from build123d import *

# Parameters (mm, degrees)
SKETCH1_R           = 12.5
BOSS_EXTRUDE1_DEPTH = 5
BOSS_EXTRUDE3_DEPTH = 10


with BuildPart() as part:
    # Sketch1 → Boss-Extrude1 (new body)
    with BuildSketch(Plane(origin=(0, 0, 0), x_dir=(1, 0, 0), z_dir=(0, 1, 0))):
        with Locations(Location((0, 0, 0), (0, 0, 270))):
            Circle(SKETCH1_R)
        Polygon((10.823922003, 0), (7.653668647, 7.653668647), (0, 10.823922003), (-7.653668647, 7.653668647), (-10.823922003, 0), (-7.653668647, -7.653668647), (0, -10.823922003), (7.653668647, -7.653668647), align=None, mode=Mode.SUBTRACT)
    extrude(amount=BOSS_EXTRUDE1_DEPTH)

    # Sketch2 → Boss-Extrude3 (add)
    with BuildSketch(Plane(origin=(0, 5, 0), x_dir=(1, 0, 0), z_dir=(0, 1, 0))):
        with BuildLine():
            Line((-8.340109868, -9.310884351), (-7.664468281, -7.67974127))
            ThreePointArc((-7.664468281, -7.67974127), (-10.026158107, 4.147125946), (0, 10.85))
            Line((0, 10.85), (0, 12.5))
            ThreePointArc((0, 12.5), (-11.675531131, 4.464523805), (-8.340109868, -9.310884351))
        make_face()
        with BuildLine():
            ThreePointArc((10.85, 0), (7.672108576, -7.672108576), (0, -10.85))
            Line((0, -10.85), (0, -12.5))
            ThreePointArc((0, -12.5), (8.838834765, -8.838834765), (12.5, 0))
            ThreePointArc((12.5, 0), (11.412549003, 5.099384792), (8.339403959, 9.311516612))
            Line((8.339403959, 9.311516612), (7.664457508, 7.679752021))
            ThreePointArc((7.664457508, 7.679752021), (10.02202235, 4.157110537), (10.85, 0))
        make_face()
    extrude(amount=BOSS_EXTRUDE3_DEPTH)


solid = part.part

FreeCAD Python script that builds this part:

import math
import FreeCAD as App
import Part
import Sketcher
from FreeCAD import Vector
Q = App.Units.Quantity


def add_polygon(sketch, points):
    """Adds a closed chain of lines whose ends are joined by coincident constraints."""
    first, n = sketch.GeometryCount, len(points)
    for a, b in zip(points, points[1:] + points[:1]):
        sketch.addGeometry(Part.LineSegment(App.Vector(*a, 0), App.Vector(*b, 0)), False)
    for i in range(n):
        sketch.addConstraint(Sketcher.Constraint("Coincident", first + i, 2, first + (i + 1) % n, 1))

doc = App.newDocument("Part")
body = doc.addObject("PartDesign::Body", "Body")

sketch1 = body.newObject("Sketcher::SketchObject", "Sketch")
sketch1.AttachmentSupport = (doc.getObject("XZ_Plane"), [""])
sketch1.MapMode = "FlatFace"
sketch1.addGeometry(Part.Circle(Vector(0, 0, 0), Vector(0, 0, 1), 12), False)
add_polygon(sketch1, [(8, -8), (11, 0), (8, 8), (0, 11), (-8, 8), (-11, 0), (-8, -8), (0, -11)])
sketch1.addConstraint(Sketcher.Constraint("Coincident", 0, 3, -1, 1))
sketch1.addConstraint(Sketcher.Constraint("Symmetric", 1, 2, 5, 2, -1, 1))
sketch1.addConstraint(Sketcher.Constraint("Symmetric", 2, 2, 6, 2, -1, 1))
sketch1.addConstraint(Sketcher.Constraint("Symmetric", 3, 2, 7, 2, -1, 1))
sketch1.addConstraint(Sketcher.Constraint("Symmetric", 4, 2, 8, 2, -1, 1))
sketch1.addConstraint(Sketcher.Constraint("Symmetric", 2, 2, 4, 2, -2))
sketch1.addConstraint(Sketcher.Constraint("PointOnObject", 1, 2, -1))
sketch1.addConstraint(Sketcher.Constraint("PointOnObject", 3, 2, -2))
sketch1.addConstraint(Sketcher.Constraint("Perpendicular", 1, 3))
sketch1.addConstraint(Sketcher.Constraint("Equal", 2, 3))
sketch1.addConstraint(Sketcher.Constraint("Diameter", 0, 25.0))
sketch1.addConstraint(Sketcher.Constraint("Angle", 1, Q("67.5 deg")))
sketch1.addConstraint(Sketcher.Constraint("Distance", 1, 8.284271))
pad1 = body.newObject("PartDesign::Pad", "Pad")
pad1.Profile = sketch1
pad1.Length = 5
pad1.Reversed = True

sketch2 = body.newObject("Sketcher::SketchObject", "Sketch001")
sketch2.AttachmentSupport = (doc.getObject("XZ_Plane"), [""])
sketch2.MapMode = "FlatFace"
sketch2.AttachmentOffset = App.Placement(Vector(0, 0, -5), App.Rotation())
sketch2.addGeometry(Part.LineSegment(Vector(-8.3, 9.3, 0), Vector(-7.7, 7.7, 0)), False)
sketch2.addGeometry(Part.ArcOfCircle(Part.Circle(Vector(0, 0, 0), Vector(0, 0, 1), 10.8), math.radians(135), math.radians(270)), False)
sketch2.addGeometry(Part.LineSegment(Vector(0, -10.8, 0), Vector(0, -12.5, 0)), False)
sketch2.addGeometry(Part.ArcOfCircle(Part.Circle(Vector(0, 0, 0), Vector(0, 0, 1), 12.5), math.radians(132), math.radians(270)), False)
sketch2.addGeometry(Part.ArcOfCircle(Part.Circle(Vector(0, 0, 0), Vector(0, 0, 1), 10.8), math.radians(0), math.radians(90)), False)
sketch2.addGeometry(Part.LineSegment(Vector(0, 10.8, 0), Vector(0, 12.5, 0)), False)
sketch2.addGeometry(Part.ArcOfCircle(Part.Circle(Vector(0, 0, 0), Vector(0, 0, 1), 12.5), math.radians(0), math.radians(90)), False)
sketch2.addGeometry(Part.ArcOfCircle(Part.Circle(Vector(0, 0, 0), Vector(0, 0, 1), 12.5), math.radians(-48), math.radians(0)), False)
sketch2.addGeometry(Part.LineSegment(Vector(8.3, -9.3, 0), Vector(7.7, -7.7, 0)), False)
sketch2.addGeometry(Part.ArcOfCircle(Part.Circle(Vector(0, 0, 0), Vector(0, 0, 1), 10.8), math.radians(-45), math.radians(0)), False)
sketch2.addConstraint(Sketcher.Constraint("Coincident", 0, 2, 1, 1))
sketch2.addConstraint(Sketcher.Constraint("Coincident", 1, 2, 2, 1))
sketch2.addConstraint(Sketcher.Constraint("Coincident", 2, 2, 3, 2))
sketch2.addConstraint(Sketcher.Constraint("Coincident", 3, 1, 0, 1))
sketch2.addConstraint(Sketcher.Constraint("Coincident", 4, 2, 5, 1))
sketch2.addConstraint(Sketcher.Constraint("Coincident", 5, 2, 6, 2))
sketch2.addConstraint(Sketcher.Constraint("Tangent", 6, 1, 7, 2))
sketch2.addConstraint(Sketcher.Constraint("Coincident", 7, 1, 8, 1))
sketch2.addConstraint(Sketcher.Constraint("Coincident", 8, 2, 9, 1))
sketch2.addConstraint(Sketcher.Constraint("Tangent", 9, 2, 4, 1))
sketch2.addConstraint(Sketcher.Constraint("Vertical", 2))
sketch2.addConstraint(Sketcher.Constraint("Vertical", 5))
sketch2.addConstraint(Sketcher.Constraint("Coincident", 1, 3, -1, 1))
sketch2.addConstraint(Sketcher.Constraint("Coincident", 3, 3, -1, 1))
sketch2.addConstraint(Sketcher.Constraint("Coincident", 4, 3, -1, 1))
sketch2.addConstraint(Sketcher.Constraint("Coincident", 6, 3, -1, 1))
sketch2.addConstraint(Sketcher.Constraint("Equal", 1, 4))
sketch2.addConstraint(Sketcher.Constraint("Equal", 3, 6))
sketch2.addConstraint(Sketcher.Constraint("Equal", 6, 7))
sketch2.addConstraint(Sketcher.Constraint("Equal", 4, 9))
sketch2.addConstraint(Sketcher.Constraint("PointOnObject", 1, 2, -2))
sketch2.addConstraint(Sketcher.Constraint("PointOnObject", 4, 2, -2))
sketch2.addConstraint(Sketcher.Constraint("PointOnObject", 6, 1, -1))
sketch2.addConstraint(Sketcher.Constraint("PointOnObject", 9, 2, -1))
sketch2.addConstraint(Sketcher.Constraint("Radius", 3, 12.5))
sketch2.addConstraint(Sketcher.Constraint("Radius", 1, 10.85))
sketch2.addConstraint(Sketcher.Constraint("Angle", 0, Q("-67.5 deg")))
sketch2.addConstraint(Sketcher.Constraint("DistanceX", 0, 2, -1, 1, 7.664468))
sketch2.addConstraint(Sketcher.Constraint("Distance", 8, 1.765845))
sketch2.addConstraint(Sketcher.Constraint("DistanceX", -1, 1, 7, 1, 8.339404))
pad2 = body.newObject("PartDesign::Pad", "Pad001")
pad2.Profile = sketch2
pad2.Length = 10
pad2.Reversed = True

doc.recompute()
